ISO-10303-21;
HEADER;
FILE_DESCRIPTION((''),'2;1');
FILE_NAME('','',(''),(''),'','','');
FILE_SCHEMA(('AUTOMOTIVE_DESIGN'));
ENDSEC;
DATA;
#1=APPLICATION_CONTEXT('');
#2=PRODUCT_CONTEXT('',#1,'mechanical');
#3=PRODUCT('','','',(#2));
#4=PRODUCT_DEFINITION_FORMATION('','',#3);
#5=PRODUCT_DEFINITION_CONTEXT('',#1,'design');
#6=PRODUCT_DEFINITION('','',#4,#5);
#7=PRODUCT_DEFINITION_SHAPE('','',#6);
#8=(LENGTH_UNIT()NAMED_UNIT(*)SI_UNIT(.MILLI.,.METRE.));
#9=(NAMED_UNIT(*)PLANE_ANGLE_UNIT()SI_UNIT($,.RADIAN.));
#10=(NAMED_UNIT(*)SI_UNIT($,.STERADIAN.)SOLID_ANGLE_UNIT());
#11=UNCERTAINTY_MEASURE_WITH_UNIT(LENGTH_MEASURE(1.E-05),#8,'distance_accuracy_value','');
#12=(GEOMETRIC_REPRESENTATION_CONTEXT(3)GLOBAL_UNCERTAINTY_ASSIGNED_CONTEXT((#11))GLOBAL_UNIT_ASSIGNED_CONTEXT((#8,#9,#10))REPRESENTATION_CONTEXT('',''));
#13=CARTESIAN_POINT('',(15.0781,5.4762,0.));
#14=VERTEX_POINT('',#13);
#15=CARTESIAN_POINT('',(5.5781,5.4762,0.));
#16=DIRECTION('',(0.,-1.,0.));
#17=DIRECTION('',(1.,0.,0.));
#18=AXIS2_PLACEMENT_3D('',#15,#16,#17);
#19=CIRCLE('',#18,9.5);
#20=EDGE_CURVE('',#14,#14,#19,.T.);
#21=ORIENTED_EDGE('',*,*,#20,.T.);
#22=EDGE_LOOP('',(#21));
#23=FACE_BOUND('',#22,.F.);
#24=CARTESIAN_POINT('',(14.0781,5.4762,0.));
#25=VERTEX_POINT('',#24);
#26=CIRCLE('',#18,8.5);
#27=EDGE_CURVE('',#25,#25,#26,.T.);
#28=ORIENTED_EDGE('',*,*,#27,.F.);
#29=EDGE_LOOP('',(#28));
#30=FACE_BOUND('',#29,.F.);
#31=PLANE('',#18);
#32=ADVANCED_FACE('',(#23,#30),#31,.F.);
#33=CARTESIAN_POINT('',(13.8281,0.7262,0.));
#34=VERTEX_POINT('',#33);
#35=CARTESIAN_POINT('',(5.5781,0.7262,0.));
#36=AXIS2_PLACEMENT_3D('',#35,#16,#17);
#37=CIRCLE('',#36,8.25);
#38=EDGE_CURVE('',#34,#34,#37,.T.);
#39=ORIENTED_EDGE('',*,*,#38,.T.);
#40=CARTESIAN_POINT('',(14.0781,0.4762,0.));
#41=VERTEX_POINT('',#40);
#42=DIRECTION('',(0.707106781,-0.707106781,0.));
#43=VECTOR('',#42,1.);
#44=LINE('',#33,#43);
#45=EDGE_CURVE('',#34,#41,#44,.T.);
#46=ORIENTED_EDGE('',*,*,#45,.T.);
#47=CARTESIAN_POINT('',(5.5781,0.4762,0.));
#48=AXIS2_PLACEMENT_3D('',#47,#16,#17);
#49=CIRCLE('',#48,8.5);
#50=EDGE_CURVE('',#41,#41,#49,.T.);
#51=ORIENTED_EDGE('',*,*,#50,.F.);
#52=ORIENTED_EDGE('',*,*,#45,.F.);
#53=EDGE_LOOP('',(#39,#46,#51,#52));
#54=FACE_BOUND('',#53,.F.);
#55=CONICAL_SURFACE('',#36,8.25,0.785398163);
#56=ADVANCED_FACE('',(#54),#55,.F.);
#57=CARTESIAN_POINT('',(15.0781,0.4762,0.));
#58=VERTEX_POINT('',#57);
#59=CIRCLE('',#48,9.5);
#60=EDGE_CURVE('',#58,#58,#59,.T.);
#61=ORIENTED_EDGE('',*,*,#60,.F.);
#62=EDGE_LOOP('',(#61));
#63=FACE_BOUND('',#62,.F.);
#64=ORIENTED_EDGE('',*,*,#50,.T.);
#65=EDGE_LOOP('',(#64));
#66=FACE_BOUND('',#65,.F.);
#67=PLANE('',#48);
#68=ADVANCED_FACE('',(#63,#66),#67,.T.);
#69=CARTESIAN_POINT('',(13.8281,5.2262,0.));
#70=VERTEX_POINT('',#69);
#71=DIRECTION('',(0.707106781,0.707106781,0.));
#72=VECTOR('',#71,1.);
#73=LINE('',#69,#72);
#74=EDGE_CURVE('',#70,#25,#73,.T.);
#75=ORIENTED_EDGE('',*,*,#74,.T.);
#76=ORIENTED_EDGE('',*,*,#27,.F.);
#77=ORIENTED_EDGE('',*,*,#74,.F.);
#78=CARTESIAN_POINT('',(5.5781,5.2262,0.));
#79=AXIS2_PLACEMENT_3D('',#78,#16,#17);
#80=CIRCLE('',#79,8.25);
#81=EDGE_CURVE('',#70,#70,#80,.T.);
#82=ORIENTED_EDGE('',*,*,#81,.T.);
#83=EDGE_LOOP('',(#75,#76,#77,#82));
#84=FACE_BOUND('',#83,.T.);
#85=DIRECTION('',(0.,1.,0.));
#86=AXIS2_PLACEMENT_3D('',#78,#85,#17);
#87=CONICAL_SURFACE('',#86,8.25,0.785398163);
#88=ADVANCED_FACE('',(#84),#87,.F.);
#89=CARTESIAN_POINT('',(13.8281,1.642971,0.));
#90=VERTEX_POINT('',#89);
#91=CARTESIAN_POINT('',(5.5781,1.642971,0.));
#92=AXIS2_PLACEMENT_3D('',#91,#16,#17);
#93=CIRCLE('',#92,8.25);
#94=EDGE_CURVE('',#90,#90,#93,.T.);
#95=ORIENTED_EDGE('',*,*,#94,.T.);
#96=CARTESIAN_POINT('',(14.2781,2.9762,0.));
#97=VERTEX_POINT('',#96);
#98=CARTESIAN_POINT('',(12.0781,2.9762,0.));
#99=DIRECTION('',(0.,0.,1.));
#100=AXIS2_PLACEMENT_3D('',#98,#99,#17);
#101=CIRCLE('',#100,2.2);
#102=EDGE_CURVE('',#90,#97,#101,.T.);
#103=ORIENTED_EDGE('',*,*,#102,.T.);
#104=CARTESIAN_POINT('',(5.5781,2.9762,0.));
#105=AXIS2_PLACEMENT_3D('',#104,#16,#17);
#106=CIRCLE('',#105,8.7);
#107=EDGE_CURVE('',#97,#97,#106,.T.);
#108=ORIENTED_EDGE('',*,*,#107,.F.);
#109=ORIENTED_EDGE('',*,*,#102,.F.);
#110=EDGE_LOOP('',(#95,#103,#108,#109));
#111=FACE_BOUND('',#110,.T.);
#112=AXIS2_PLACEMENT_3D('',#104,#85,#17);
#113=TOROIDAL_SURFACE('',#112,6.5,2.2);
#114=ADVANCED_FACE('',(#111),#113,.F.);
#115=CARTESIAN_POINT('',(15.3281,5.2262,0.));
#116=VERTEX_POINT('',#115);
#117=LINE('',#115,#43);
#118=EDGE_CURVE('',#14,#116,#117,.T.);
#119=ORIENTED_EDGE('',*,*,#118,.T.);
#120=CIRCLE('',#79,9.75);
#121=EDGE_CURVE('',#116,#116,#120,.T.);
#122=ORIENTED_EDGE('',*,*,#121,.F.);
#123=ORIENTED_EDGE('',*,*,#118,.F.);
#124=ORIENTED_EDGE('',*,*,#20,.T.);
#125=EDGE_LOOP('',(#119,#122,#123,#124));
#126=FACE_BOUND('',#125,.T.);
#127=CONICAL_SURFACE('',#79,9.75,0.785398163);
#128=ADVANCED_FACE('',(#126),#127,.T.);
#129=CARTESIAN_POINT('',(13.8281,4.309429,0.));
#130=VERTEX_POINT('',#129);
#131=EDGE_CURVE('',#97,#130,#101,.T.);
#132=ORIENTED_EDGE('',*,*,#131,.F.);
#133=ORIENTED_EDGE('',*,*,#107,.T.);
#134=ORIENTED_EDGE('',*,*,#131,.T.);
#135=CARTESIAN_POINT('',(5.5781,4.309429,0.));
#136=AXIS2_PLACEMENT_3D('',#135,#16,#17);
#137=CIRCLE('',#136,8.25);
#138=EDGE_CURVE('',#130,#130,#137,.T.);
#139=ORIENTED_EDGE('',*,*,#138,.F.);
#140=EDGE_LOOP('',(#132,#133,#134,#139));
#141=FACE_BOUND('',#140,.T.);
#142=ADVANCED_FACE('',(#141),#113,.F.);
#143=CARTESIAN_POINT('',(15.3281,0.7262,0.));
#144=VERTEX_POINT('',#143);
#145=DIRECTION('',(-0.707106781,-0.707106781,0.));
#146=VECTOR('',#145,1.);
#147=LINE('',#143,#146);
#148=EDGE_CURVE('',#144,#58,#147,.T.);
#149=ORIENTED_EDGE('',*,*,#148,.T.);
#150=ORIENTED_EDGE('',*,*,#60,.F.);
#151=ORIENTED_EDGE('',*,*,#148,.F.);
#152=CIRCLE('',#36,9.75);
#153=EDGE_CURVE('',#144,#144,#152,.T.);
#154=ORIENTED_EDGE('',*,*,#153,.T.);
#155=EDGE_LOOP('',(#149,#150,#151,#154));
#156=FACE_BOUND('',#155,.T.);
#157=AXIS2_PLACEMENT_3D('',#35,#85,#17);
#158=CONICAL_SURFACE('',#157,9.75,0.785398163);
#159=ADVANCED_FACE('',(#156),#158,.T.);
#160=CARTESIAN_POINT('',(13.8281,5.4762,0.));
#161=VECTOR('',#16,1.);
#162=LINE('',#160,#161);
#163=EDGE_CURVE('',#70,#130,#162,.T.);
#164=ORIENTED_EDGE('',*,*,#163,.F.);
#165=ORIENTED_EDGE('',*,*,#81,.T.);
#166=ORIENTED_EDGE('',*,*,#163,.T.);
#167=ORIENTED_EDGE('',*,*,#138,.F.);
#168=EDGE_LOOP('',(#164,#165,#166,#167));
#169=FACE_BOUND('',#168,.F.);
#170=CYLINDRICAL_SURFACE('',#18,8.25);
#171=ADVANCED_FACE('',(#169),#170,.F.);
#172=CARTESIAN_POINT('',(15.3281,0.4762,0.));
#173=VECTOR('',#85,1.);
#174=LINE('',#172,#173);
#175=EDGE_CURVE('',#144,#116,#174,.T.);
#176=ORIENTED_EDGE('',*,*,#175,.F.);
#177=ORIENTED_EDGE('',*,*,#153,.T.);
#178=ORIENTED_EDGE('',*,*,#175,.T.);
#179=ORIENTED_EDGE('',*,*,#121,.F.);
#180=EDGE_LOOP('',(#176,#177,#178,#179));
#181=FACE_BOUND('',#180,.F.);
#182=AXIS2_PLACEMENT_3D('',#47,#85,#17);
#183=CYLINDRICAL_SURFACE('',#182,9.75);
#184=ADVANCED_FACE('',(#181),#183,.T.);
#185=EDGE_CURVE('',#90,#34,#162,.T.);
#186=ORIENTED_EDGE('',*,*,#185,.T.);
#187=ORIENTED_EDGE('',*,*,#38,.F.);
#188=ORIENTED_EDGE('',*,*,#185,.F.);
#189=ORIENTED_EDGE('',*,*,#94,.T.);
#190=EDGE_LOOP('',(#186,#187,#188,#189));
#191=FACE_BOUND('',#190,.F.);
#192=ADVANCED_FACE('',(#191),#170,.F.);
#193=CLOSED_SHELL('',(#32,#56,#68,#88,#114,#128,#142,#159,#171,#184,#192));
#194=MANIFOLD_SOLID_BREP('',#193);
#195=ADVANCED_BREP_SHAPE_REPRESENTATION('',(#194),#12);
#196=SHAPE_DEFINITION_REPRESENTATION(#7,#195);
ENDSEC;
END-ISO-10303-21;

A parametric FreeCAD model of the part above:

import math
import FreeCAD as App
import Part
import Sketcher


def edges_at(feature, points):
    """Names of the edges that pass closest to the given points."""
    edges = feature.Shape.Edges
    near = lambda p: min(range(len(edges)), key=lambda i: edges[i].distToShape(Part.Vertex(*p))[0])
    return sorted({f"Edge{near(p) + 1}" for p in points})

doc = App.newDocument("Part")
body = doc.addObject("PartDesign::Body", "Body")

# Sketch on XY plane
sketch1 = body.newObject("Sketcher::SketchObject", "Sketch")
sketch1.AttachmentSupport = (doc.getObject("XY_Plane"), [""])
sketch1.MapMode = "FlatFace"
sketch1.addGeometry([
    Part.LineSegment(App.Vector(13.8, 1.6, 0), App.Vector(13.8, 0.5, 0)),  # 0
    Part.LineSegment(App.Vector(13.8, 0.5, 0), App.Vector(15.3, 0.5, 0)),  # 1
    Part.LineSegment(App.Vector(15.3, 0.5, 0), App.Vector(15.3, 5.5, 0)),  # 2
    Part.LineSegment(App.Vector(15.3, 5.5, 0), App.Vector(13.8, 5.5, 0)),  # 3
    Part.LineSegment(App.Vector(13.8, 5.5, 0), App.Vector(13.8, 4.3, 0)),  # 4
    Part.ArcOfCircle(Part.Circle(App.Vector(12.1, 3, 0), App.Vector(0, 0, 1), 2.2), math.radians(-37), math.radians(37)),  # 5
], False)
sketch1.addGeometry(Part.LineSegment(App.Vector(5.6, 5.5, 0), App.Vector(5.6, 0.5, 0)), True)  # axis
sketch1.addConstraint([
    Sketcher.Constraint("Coincident", 0, 2, 1, 1),
    Sketcher.Constraint("Coincident", 1, 2, 2, 1),
    Sketcher.Constraint("Coincident", 2, 2, 3, 1),
    Sketcher.Constraint("Coincident", 3, 2, 4, 1),
    Sketcher.Constraint("Coincident", 4, 2, 5, 2),
    Sketcher.Constraint("Coincident", 5, 1, 0, 1),
    Sketcher.Constraint("Vertical", 0),
    Sketcher.Constraint("Horizontal", 1),
    Sketcher.Constraint("Vertical", 2),
    Sketcher.Constraint("Horizontal", 3),
    Sketcher.Constraint("Vertical", 4),
    Sketcher.Constraint("Vertical", 6),
    Sketcher.Constraint("Horizontal", 3, 2, 6, 1),
    Sketcher.Constraint("Horizontal", 1, 2, 6, 2),
    Sketcher.Constraint("Vertical", 0, 2, 3, 2),
    Sketcher.Constraint("Equal", 0, 4),
    Sketcher.Constraint("Radius", 5, 2.2),
    Sketcher.Constraint("DistanceY", 2, 1, 2, 2, 5.0),
    Sketcher.Constraint("DistanceX", 1, 1, 1, 2, 1.5),
    Sketcher.Constraint("DistanceX", 5, 3, 0, 2, 1.75),
    Sketcher.Constraint("DistanceX", 6, 1, 5, 3, 6.5),
    Sketcher.Constraint("DistanceX", -1, 1, 5, 3, 12.078),
    Sketcher.Constraint("DistanceY", -1, 1, 5, 1, 1.643),
])
revolution = body.newObject("PartDesign::Revolution", "Revolution")
revolution.Profile = sketch1
revolution.ReferenceAxis = (sketch1, ["Axis0"])
revolution.Angle = 360
doc.recompute()

chamfer = body.newObject("PartDesign::Chamfer", "Chamfer")
chamfer.Base = (revolution, edges_at(revolution, [
    (-4.172, 5.476, 0),
    (-2.672, 5.476, 0),
    (-4.172, 0.476, 0),
    (-2.672, 0.476, 0),
]))
chamfer.Size = 0.25

doc.recompute()
